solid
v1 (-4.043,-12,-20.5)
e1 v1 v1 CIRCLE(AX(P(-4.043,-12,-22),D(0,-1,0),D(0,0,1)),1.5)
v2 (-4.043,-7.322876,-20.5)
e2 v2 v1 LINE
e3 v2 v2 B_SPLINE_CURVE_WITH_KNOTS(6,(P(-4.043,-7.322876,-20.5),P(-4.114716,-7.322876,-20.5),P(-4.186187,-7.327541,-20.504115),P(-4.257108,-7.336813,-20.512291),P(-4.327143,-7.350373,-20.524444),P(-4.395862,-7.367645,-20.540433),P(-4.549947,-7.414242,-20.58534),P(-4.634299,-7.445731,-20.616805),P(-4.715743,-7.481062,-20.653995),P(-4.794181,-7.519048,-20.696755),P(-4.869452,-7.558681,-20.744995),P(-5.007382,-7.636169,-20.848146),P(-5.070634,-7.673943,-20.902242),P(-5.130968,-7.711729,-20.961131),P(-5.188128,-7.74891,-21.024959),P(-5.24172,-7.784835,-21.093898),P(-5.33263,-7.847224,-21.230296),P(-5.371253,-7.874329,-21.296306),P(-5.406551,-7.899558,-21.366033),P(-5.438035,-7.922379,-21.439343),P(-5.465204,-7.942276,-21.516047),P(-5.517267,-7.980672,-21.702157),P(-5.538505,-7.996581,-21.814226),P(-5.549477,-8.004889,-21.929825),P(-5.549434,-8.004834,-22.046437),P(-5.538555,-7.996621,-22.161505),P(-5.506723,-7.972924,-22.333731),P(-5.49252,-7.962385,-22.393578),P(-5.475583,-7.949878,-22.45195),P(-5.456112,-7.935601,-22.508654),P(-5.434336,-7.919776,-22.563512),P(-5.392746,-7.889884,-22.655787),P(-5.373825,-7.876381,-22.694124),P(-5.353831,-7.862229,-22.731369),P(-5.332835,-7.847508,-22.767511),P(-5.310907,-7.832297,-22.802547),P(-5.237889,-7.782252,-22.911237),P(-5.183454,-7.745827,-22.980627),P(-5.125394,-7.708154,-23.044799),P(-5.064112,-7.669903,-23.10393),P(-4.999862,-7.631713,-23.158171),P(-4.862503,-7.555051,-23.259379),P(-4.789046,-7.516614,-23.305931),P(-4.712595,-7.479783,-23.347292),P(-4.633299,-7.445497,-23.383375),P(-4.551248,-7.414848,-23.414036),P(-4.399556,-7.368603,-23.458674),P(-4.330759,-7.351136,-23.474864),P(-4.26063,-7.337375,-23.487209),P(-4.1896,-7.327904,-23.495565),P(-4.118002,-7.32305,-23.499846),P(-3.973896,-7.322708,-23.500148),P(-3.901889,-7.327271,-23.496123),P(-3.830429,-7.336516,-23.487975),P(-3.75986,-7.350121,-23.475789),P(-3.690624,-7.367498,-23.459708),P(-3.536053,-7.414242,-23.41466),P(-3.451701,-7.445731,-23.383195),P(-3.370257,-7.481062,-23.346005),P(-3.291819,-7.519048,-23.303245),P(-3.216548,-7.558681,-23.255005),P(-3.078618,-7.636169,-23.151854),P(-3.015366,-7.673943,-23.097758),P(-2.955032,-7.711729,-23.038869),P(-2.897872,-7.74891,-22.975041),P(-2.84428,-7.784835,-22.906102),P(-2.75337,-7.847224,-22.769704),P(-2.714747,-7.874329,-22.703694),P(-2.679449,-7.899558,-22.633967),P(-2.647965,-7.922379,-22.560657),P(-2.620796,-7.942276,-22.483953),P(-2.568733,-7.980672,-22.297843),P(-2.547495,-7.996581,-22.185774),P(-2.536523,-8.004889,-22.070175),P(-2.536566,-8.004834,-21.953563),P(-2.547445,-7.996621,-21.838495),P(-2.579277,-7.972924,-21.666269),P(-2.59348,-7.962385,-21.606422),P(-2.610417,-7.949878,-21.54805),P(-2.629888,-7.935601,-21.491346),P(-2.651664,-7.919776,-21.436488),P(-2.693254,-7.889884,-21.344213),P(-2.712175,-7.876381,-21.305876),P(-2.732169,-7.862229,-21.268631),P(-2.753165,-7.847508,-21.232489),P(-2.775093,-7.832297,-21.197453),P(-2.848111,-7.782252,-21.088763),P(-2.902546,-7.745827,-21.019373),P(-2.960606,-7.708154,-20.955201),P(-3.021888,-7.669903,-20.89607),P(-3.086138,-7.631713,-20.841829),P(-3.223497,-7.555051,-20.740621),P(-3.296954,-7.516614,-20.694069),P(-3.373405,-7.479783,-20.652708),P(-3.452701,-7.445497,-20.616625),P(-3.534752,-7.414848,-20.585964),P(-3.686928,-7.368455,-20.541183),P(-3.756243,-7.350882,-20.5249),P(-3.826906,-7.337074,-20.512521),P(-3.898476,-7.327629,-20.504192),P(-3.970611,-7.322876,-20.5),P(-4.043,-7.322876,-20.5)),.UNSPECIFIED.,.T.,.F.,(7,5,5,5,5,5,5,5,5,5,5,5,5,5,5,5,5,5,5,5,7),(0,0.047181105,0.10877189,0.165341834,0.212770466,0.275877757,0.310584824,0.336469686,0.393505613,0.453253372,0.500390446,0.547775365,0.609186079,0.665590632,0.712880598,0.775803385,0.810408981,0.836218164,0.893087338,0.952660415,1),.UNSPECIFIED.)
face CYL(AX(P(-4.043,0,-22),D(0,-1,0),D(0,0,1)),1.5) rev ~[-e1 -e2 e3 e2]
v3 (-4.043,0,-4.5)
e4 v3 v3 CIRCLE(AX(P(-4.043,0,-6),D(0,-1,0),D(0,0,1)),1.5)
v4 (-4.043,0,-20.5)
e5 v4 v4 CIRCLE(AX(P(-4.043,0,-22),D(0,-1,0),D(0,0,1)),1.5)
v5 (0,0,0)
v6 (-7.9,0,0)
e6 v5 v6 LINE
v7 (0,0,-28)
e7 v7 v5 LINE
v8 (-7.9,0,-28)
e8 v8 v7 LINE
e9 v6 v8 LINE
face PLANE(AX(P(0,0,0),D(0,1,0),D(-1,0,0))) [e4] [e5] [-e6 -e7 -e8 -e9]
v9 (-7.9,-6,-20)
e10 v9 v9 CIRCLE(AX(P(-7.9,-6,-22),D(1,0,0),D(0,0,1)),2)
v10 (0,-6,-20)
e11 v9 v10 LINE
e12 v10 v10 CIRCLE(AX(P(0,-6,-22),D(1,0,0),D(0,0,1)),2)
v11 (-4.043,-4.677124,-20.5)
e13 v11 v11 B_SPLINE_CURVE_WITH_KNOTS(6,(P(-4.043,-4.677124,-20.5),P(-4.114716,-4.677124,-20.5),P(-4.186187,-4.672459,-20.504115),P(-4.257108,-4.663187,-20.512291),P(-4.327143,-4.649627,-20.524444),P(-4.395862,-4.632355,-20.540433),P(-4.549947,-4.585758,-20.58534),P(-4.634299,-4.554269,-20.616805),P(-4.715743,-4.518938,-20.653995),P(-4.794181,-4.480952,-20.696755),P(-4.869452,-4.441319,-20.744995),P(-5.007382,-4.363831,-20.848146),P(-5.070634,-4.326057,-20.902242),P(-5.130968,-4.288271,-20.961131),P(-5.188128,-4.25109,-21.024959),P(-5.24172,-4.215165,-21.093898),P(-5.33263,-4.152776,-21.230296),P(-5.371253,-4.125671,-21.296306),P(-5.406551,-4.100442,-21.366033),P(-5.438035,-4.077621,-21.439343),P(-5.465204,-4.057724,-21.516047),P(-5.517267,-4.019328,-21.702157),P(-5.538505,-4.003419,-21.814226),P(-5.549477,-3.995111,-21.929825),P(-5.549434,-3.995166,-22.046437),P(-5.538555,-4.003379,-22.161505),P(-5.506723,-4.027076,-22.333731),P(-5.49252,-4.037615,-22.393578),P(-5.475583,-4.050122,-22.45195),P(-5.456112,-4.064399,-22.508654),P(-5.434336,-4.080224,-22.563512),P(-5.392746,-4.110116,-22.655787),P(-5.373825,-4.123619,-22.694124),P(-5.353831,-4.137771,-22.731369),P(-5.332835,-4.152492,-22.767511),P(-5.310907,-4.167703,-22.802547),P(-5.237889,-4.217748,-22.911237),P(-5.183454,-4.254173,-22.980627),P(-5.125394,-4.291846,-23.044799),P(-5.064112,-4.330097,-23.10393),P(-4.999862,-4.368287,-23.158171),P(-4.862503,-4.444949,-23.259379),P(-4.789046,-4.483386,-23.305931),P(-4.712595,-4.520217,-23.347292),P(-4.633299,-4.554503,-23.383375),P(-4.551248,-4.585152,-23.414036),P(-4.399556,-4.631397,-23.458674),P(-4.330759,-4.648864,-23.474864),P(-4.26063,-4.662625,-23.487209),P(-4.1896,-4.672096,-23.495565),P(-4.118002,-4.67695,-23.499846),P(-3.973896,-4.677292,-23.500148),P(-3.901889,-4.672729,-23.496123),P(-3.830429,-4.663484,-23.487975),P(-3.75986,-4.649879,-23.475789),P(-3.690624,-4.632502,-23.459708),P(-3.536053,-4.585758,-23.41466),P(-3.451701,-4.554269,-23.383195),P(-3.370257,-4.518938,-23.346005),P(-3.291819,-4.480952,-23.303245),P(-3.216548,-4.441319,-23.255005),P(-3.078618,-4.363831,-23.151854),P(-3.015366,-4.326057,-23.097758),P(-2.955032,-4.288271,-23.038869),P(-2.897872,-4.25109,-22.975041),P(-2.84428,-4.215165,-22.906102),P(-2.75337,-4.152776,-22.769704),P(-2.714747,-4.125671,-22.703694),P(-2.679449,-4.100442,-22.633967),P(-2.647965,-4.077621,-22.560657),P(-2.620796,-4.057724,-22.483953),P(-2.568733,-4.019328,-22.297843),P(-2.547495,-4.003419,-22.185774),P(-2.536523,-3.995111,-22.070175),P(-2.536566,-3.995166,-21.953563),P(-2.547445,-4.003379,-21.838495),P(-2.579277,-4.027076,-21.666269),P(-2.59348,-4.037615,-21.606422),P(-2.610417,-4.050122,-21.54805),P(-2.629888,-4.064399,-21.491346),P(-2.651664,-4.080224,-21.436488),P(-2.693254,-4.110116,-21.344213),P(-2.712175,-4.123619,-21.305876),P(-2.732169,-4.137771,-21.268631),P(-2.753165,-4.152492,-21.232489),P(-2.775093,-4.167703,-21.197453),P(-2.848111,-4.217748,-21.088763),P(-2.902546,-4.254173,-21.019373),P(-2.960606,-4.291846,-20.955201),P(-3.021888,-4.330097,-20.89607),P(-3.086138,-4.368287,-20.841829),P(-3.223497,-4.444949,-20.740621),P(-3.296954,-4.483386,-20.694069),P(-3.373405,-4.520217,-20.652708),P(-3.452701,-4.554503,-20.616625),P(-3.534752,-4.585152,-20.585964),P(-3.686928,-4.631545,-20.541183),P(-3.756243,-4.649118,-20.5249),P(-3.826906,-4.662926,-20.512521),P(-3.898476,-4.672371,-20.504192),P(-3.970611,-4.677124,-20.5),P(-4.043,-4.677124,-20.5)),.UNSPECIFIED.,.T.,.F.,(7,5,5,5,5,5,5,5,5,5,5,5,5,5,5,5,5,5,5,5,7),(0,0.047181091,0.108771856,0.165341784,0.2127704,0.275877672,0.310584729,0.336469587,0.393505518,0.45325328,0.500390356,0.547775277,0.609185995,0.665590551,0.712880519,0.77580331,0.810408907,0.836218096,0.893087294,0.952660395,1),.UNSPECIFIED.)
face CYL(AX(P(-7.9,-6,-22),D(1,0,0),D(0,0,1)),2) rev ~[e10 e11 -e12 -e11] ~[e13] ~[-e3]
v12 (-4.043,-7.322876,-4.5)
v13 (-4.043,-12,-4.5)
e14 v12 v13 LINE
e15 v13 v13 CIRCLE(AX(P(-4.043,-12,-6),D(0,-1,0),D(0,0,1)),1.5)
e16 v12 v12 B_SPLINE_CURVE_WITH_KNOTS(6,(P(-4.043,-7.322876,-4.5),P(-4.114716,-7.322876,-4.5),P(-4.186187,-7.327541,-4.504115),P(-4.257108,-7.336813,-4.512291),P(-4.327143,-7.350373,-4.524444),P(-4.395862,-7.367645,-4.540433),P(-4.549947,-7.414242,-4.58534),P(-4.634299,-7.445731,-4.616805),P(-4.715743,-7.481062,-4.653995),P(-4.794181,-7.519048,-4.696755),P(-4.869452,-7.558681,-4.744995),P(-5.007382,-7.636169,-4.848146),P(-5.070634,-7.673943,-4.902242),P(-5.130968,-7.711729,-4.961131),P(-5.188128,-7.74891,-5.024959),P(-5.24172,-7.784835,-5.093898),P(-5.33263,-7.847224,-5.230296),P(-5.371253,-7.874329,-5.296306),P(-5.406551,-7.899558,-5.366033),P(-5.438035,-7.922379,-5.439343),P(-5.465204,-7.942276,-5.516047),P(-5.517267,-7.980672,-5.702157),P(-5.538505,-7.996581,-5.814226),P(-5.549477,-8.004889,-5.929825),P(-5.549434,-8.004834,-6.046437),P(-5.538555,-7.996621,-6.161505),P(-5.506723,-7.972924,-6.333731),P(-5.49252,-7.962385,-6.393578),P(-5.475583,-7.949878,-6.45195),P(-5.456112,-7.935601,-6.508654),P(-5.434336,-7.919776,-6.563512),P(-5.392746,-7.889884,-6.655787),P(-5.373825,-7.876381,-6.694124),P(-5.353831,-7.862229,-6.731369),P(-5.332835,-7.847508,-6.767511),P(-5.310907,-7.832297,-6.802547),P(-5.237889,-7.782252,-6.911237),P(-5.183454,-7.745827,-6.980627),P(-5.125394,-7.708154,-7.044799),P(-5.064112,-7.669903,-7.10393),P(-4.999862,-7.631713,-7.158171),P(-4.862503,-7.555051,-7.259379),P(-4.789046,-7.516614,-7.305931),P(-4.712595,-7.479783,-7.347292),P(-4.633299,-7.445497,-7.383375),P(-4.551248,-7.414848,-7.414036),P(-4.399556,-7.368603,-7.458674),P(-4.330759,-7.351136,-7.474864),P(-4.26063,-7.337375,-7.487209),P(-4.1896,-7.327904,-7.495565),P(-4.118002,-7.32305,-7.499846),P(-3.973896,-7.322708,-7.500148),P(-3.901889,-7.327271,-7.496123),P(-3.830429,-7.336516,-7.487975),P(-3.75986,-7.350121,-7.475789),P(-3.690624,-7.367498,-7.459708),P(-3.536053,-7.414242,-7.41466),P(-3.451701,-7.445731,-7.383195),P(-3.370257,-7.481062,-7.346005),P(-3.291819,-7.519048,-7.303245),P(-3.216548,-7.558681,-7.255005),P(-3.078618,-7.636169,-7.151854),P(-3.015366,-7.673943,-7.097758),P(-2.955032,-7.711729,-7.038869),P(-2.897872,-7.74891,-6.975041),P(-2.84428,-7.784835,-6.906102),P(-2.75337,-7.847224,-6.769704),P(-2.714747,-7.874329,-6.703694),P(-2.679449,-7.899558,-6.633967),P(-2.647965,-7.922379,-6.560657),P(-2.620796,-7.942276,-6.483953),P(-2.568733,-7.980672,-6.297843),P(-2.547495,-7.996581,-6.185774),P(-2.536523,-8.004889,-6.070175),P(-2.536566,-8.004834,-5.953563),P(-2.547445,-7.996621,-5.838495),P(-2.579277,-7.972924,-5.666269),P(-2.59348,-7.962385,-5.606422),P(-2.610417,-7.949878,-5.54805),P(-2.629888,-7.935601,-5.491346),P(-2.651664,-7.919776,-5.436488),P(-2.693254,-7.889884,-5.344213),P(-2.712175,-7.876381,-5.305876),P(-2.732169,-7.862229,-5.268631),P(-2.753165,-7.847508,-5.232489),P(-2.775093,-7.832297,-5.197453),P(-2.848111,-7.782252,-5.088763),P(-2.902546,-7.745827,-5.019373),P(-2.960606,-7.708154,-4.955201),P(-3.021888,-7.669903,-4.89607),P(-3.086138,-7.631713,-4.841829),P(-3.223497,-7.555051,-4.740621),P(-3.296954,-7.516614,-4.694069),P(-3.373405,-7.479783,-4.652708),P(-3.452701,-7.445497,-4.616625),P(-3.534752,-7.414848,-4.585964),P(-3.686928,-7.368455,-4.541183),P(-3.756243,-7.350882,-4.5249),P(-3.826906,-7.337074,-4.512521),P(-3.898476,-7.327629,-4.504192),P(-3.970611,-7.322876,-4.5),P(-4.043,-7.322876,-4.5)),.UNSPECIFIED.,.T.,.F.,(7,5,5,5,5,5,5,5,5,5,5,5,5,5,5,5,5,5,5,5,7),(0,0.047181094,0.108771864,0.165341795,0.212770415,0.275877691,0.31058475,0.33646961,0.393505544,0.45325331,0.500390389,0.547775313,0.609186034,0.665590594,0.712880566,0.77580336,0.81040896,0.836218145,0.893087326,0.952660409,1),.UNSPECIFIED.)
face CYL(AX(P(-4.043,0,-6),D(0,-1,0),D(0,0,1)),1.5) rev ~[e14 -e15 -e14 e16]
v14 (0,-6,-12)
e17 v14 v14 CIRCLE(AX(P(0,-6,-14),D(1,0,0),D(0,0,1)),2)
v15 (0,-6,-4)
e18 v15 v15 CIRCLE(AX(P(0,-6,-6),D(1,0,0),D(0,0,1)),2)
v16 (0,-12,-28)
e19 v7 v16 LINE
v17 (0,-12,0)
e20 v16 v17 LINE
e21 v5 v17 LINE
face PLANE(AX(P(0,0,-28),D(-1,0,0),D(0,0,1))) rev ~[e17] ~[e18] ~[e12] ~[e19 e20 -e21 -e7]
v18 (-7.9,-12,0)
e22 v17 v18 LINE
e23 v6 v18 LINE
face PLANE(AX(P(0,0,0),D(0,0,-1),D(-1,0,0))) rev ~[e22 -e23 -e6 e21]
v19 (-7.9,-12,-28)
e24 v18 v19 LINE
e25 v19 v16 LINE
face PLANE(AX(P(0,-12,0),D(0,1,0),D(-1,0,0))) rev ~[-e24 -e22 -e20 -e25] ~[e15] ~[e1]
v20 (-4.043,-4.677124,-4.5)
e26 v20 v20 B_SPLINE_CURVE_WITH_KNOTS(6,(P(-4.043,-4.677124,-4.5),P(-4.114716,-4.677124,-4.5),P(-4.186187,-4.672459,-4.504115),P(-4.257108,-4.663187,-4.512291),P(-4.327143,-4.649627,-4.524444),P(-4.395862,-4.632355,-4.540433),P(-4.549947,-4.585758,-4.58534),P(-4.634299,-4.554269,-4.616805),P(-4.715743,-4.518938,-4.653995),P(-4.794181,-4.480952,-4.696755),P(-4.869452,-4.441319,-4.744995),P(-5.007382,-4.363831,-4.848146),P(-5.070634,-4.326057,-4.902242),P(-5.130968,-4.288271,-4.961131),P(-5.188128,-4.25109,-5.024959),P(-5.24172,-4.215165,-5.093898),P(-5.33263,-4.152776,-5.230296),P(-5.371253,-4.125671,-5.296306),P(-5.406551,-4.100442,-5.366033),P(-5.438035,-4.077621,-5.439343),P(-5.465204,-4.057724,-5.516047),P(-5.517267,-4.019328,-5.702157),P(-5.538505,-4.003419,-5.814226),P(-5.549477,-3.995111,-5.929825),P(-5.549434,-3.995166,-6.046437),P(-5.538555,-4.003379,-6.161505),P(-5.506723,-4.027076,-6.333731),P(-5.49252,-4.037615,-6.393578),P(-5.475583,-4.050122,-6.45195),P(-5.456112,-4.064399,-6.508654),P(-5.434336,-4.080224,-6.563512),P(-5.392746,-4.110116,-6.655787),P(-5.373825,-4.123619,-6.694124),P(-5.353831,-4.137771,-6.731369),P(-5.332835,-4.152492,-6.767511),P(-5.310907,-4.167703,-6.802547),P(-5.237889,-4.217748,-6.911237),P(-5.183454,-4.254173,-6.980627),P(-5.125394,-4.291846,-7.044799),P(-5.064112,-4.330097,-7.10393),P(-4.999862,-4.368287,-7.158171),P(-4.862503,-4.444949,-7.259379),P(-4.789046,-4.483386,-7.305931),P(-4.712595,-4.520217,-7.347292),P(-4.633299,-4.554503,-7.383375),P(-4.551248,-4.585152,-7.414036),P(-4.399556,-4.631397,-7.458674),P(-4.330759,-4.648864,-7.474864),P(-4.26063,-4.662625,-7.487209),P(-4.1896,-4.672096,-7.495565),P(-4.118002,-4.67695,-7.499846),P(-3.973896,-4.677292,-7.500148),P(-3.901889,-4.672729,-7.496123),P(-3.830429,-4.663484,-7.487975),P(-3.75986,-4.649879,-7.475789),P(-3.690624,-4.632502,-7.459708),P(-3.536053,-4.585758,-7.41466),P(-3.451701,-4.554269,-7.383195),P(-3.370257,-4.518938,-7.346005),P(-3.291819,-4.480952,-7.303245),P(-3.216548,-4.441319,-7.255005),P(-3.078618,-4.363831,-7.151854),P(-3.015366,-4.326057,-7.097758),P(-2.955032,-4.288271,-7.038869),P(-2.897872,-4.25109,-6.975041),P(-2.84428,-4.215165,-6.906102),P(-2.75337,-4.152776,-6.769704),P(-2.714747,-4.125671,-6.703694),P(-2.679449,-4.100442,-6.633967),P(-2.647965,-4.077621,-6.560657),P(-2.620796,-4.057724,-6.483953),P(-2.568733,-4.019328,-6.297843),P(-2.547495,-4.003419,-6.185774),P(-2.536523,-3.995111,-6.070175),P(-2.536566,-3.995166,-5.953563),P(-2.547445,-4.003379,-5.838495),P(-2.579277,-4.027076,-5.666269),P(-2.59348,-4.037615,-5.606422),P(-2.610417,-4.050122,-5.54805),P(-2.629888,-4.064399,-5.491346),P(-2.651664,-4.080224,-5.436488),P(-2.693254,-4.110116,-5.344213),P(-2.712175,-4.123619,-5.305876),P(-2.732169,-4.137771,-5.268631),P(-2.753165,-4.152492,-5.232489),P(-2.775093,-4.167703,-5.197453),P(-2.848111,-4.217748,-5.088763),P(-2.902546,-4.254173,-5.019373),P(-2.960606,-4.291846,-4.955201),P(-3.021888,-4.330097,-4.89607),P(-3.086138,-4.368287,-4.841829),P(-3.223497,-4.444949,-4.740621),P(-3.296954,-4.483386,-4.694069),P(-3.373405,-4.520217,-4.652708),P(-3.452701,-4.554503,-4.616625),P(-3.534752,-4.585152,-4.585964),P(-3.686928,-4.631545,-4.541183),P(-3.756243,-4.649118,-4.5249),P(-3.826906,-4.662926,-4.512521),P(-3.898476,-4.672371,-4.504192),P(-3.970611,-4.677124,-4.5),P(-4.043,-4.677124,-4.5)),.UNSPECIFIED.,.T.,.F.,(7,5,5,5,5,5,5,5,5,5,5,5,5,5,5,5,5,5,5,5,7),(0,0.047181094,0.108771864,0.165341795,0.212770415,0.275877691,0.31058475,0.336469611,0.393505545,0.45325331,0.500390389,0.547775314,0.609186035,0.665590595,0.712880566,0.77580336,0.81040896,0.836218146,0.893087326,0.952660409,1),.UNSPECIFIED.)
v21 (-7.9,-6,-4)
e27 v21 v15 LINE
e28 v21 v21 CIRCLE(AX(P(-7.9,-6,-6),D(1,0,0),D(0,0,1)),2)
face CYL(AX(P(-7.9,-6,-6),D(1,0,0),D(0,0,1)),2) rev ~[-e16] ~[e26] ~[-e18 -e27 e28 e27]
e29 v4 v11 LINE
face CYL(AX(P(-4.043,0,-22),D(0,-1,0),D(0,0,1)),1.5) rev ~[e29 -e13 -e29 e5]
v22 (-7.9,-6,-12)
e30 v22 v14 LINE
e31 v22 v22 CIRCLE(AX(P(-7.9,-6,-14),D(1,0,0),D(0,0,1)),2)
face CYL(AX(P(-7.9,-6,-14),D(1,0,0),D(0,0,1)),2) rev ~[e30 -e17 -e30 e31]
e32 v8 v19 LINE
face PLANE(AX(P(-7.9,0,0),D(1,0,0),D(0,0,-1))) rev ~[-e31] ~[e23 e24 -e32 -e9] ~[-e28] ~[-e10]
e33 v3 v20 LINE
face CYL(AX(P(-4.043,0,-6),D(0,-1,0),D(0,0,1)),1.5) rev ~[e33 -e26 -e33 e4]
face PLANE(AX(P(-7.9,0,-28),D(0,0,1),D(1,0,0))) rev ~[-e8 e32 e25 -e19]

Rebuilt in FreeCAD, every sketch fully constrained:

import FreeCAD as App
import Part
import Sketcher

V = App.Vector


def add_polygon(sketch, points):
    """Adds a closed chain of lines whose ends are joined by coincident constraints."""
    first, n = sketch.GeometryCount, len(points)
    for a, b in zip(points, points[1:] + points[:1]):
        sketch.addGeometry(Part.LineSegment(App.Vector(*a, 0), App.Vector(*b, 0)), False)
    for i in range(n):
        sketch.addConstraint(Sketcher.Constraint("Coincident", first + i, 2, first + (i + 1) % n, 1))

doc = App.newDocument("Part")
body = doc.addObject("PartDesign::Body", "Body")

sketch1 = doc.addObject("Sketcher::SketchObject", "Sketch")
body.addObject(sketch1)
sketch1.AttachmentSupport = (doc.XZ_Plane, [""])
sketch1.MapMode = "FlatFace"
add_polygon(sketch1, [(-8, 0), (0, 0), (0, -28), (-8, -28)])
sketch1.addConstraint([
    Sketcher.Constraint("Horizontal", 0),
    Sketcher.Constraint("Vertical", 1),
    Sketcher.Constraint("Horizontal", 2),
    Sketcher.Constraint("Vertical", 3),
    Sketcher.Constraint("Coincident", 0, 2, -1, 1),
    Sketcher.Constraint("DistanceY", 1, 2, 1, 1, 28.0),
    Sketcher.Constraint("DistanceX", 0, 1, 0, 2, 7.9),
])
pad1 = doc.addObject("PartDesign::Pad", "Pad")
body.addObject(pad1)
pad1.Profile = sketch1
pad1.Length = 12

sketch2 = doc.addObject("Sketcher::SketchObject", "Sketch001")
body.addObject(sketch2)
sketch2.AttachmentSupport = (doc.XZ_Plane, [""])
sketch2.MapMode = "FlatFace"
sketch2.addGeometry([
    Part.Circle(V(-4, -6, 0), V(0, 0, 1), 1.5),
    Part.Circle(V(-4, -22, 0), V(0, 0, 1), 1.5),
], False)
sketch2.addConstraint([
    Sketcher.Constraint("Equal", 0, 1),
    Sketcher.Constraint("Vertical", 0, 3, 1, 3),
    Sketcher.Constraint("Diameter", 0, 3.0),
    Sketcher.Constraint("DistanceY", 0, 3, -1, 1, 6.0),
    Sketcher.Constraint("DistanceY", 1, 3, -1, 1, 22.0),
    Sketcher.Constraint("DistanceX", 0, 3, -1, 1, 4.043),
])
doc.recompute()
hole = doc.addObject("PartDesign::Hole", "Hole")
body.addObject(hole)
hole.Profile = sketch2
hole.ThreadType = "None"
hole.Diameter = 3
hole.DepthType = "ThroughAll"
hole.Reversed = True

sketch3 = doc.addObject("Sketcher::SketchObject", "Sketch002")
body.addObject(sketch3)
sketch3.AttachmentSupport = (doc.YZ_Plane, [""])
sketch3.MapMode = "FlatFace"
sketch3.AttachmentOffset = App.Placement(V(0, 0, -7.9), App.Rotation())
sketch3.addGeometry([
    Part.Circle(V(-6, -6, 0), V(0, 0, 1), 2),
    Part.Circle(V(-6, -14, 0), V(0, 0, 1), 2),
    Part.Circle(V(-6, -22, 0), V(0, 0, 1), 2),
], False)
sketch3.addConstraint([
    Sketcher.Constraint("Equal", 0, 1),
    Sketcher.Constraint("Equal", 1, 2),
    Sketcher.Constraint("Vertical", 0, 3, 1, 3),
    Sketcher.Constraint("Vertical", 1, 3, 2, 3),
    Sketcher.Constraint("Diameter", 0, 4.0),
    Sketcher.Constraint("DistanceX", 0, 3, -1, 1, 6.0),
    Sketcher.Constraint("DistanceY", 0, 3, -1, 1, 6.0),
    Sketcher.Constraint("DistanceY", 1, 3, -1, 1, 14.0),
    Sketcher.Constraint("DistanceY", 2, 3, -1, 1, 22.0),
])
doc.recompute()
hole2 = doc.addObject("PartDesign::Hole", "Hole001")
body.addObject(hole2)
hole2.Profile = sketch3
hole2.ThreadType = "None"
hole2.Diameter = 4
hole2.DepthType = "ThroughAll"
hole2.Reversed = True

doc.recompute()
